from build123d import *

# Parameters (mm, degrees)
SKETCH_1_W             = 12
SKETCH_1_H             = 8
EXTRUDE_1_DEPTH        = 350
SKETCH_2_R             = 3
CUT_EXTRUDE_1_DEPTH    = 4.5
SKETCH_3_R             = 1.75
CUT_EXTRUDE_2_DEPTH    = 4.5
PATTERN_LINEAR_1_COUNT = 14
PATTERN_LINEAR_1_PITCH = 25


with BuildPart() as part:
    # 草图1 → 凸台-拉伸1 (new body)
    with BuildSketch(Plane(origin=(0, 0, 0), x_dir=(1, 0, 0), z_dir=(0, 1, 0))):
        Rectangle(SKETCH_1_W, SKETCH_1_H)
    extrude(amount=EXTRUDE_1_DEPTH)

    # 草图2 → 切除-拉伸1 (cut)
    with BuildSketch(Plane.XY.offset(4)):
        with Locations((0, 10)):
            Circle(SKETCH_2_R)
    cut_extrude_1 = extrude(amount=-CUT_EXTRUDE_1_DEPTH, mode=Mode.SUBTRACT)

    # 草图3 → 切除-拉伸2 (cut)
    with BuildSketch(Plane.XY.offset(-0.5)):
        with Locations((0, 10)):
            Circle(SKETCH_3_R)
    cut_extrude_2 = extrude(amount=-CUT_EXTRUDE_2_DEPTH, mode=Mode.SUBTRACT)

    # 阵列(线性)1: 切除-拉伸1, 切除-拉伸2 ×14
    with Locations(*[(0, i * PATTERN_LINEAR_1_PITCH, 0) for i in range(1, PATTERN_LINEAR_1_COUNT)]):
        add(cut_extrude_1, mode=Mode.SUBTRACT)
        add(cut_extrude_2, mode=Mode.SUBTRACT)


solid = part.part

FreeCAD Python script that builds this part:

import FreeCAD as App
import Part
import Sketcher

V = App.Vector


def add_polygon(sketch, points):
    """Adds a closed chain of lines whose ends are joined by coincident constraints."""
    first, n = sketch.GeometryCount, len(points)
    for a, b in zip(points, points[1:] + points[:1]):
        sketch.addGeometry(Part.LineSegment(App.Vector(*a, 0), App.Vector(*b, 0)), False)
    for i in range(n):
        sketch.addConstraint(Sketcher.Constraint("Coincident", first + i, 2, first + (i + 1) % n, 1))

doc = App.newDocument("Part")
body = doc.addObject("PartDesign::Body", "Body")

sketch1 = body.newObject("Sketcher::SketchObject", "Sketch")
sketch1.AttachmentSupport = (doc.getObject("XZ_Plane"), [""])
sketch1.MapMode = "FlatFace"
add_polygon(sketch1, [(-6, -4), (-6, 4), (6, 4), (6, -4)])
sketch1.addConstraint([
    Sketcher.Constraint("Vertical", 0),
    Sketcher.Constraint("Horizontal", 1),
    Sketcher.Constraint("Vertical", 2),
    Sketcher.Constraint("Horizontal", 3),
    Sketcher.Constraint("Symmetric", 0, 2, 2, 2, -1, 1),
    Sketcher.Constraint("DistanceX", 1, 1, 1, 2, 12.0),
    Sketcher.Constraint("DistanceY", 0, 1, 0, 2, 8.0),
])
pad1 = body.newObject("PartDesign::Pad", "Pad")
pad1.Profile = sketch1
pad1.Length = 350
pad1.Reversed = True

sketch2 = body.newObject("Sketcher::SketchObject", "Sketch001")
sketch2.AttachmentSupport = (doc.getObject("XY_Plane"), [""])
sketch2.MapMode = "FlatFace"
sketch2.AttachmentOffset = App.Placement(V(0, 0, 4), App.Rotation())
sketch2.addGeometry(Part.Circle(V(0, 10, 0), V(0, 0, 1), 3), False)
sketch2.addConstraint([
    Sketcher.Constraint("PointOnObject", 0, 3, -2),
    Sketcher.Constraint("Diameter", 0, 6.0),
    Sketcher.Constraint("DistanceY", -1, 1, 0, 3, 10.0),
])
pocket1 = body.newObject("PartDesign::Pocket", "Pocket")
pocket1.Profile = sketch2
pocket1.Length = 4.5

sketch3 = body.newObject("Sketcher::SketchObject", "Sketch002")
sketch3.AttachmentSupport = (doc.getObject("XY_Plane"), [""])
sketch3.MapMode = "FlatFace"
sketch3.AttachmentOffset = App.Placement(V(0, 0, -0.5), App.Rotation())
sketch3.addGeometry(Part.Circle(V(0, 10, 0), V(0, 0, 1), 1.75), False)
sketch3.addConstraint([
    Sketcher.Constraint("PointOnObject", 0, 3, -2),
    Sketcher.Constraint("Diameter", 0, 3.5),
    Sketcher.Constraint("DistanceY", -1, 1, 0, 3, 10.0),
])
pocket2 = body.newObject("PartDesign::Pocket", "Pocket001")
pocket2.Profile = sketch3
pocket2.Length = 4.5
doc.recompute()

linearpattern = body.newObject("PartDesign::LinearPattern", "LinearPattern")
linearpattern.Originals = [pocket1, pocket2]
linearpattern.Direction = (doc.getObject("Y_Axis"), [""])
linearpattern.Mode = "offset"
linearpattern.Offset = 25
linearpattern.Occurrences = 14
body.Tip = linearpattern

doc.recompute()
